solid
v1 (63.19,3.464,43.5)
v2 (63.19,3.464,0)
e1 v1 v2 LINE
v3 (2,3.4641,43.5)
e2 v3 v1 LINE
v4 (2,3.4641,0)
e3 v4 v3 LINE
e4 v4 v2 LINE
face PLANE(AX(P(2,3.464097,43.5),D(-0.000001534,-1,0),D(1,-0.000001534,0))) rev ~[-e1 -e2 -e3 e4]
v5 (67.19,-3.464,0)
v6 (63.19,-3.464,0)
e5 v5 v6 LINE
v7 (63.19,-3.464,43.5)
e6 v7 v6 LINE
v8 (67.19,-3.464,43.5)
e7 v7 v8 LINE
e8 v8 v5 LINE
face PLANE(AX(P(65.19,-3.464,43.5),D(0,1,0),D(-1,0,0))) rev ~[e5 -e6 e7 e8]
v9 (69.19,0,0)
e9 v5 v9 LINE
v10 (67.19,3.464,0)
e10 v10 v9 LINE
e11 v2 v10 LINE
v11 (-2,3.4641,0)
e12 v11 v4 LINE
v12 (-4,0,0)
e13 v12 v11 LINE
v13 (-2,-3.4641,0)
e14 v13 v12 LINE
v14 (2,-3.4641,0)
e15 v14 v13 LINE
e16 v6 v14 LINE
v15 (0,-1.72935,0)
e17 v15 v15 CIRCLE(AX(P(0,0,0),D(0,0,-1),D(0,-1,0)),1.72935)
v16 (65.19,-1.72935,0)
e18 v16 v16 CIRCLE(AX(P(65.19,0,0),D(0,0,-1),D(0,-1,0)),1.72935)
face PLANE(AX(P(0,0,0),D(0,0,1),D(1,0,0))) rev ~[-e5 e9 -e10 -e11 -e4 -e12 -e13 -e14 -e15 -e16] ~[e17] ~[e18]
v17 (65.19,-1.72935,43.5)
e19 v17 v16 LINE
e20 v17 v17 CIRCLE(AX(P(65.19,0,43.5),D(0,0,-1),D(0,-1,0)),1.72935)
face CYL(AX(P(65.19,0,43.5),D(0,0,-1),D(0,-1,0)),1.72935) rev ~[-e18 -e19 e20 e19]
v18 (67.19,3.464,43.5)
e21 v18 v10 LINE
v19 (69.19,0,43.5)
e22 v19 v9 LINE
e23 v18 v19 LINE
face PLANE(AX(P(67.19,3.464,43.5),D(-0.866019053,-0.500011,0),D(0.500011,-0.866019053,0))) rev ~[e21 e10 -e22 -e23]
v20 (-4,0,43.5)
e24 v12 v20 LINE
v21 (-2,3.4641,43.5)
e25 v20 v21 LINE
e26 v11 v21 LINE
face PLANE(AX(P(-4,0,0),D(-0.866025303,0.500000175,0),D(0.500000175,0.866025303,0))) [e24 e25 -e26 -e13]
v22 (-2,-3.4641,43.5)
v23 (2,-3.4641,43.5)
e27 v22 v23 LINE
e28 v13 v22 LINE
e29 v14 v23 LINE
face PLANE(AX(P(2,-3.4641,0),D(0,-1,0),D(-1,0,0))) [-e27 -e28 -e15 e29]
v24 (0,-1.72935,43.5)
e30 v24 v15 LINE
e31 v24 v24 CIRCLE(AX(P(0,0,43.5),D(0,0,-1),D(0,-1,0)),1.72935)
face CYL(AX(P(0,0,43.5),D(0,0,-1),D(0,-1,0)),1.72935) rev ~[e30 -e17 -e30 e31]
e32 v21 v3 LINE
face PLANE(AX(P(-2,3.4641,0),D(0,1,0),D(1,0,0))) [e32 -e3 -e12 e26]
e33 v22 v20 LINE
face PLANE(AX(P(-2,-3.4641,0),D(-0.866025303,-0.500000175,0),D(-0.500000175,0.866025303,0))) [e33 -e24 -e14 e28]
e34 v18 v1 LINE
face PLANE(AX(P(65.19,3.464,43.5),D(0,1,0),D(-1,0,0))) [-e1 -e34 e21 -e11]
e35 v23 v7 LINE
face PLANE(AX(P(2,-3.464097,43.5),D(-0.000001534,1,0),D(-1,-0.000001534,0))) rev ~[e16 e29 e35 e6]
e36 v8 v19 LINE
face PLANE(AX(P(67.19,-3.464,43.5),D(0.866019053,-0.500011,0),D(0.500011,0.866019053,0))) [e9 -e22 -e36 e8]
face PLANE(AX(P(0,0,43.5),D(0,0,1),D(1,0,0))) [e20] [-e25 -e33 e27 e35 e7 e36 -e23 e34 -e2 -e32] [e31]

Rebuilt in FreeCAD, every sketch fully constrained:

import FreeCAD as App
import Part
import Sketcher
from FreeCAD import Vector
Q = App.Units.Quantity

doc = App.newDocument("Part")
body = doc.addObject("PartDesign::Body", "Body")

sketch1 = body.newObject("Sketcher::SketchObject", "Sketch")
sketch1.AttachmentSupport = (doc.getObject("XY_Plane"), [""])
sketch1.MapMode = "FlatFace"
sketch1.addGeometry([
    Part.LineSegment(Vector(4, 0, 0), Vector(2, 3.4641, 0)),
    Part.LineSegment(Vector(2, 3.4641, 0), Vector(-2, 3.4641, 0)),
    Part.LineSegment(Vector(-2, 3.4641, 0), Vector(-4, 0, 0)),
    Part.LineSegment(Vector(-4, 0, 0), Vector(-2, -3.4641, 0)),
    Part.LineSegment(Vector(-2, -3.4641, 0), Vector(2, -3.4641, 0)),
    Part.LineSegment(Vector(2, -3.4641, 0), Vector(4, 0, 0)),
], False)
sketch1.addConstraint([
    Sketcher.Constraint("Coincident", 0, 2, 1, 1),
    Sketcher.Constraint("Coincident", 1, 2, 2, 1),
    Sketcher.Constraint("Coincident", 2, 2, 3, 1),
    Sketcher.Constraint("Coincident", 3, 2, 4, 1),
    Sketcher.Constraint("Coincident", 4, 2, 5, 1),
    Sketcher.Constraint("Coincident", 5, 2, 0, 1),
    Sketcher.Constraint("Horizontal", 1),
    Sketcher.Constraint("Horizontal", 4),
    Sketcher.Constraint("Symmetric", 0, 2, 3, 2, -1, 1),
    Sketcher.Constraint("Symmetric", 2, 2, 5, 2, -1, 1),
    Sketcher.Constraint("PointOnObject", 2, 2, -1),
    Sketcher.Constraint("Parallel", 2, 5),
    Sketcher.Constraint("Vertical", 1, 2, 3, 2),
    Sketcher.Constraint("DistanceX", 1, 2, 1, 1, 4.0),
    Sketcher.Constraint("Angle", 0, Q("120 deg")),
    Sketcher.Constraint("Distance", 0, 4.0),
])
pad1 = body.newObject("PartDesign::Pad", "Pad")
pad1.Profile = sketch1
pad1.Length = 43.5

sketch2 = body.newObject("Sketcher::SketchObject", "Sketch001")
sketch2.AttachmentSupport = (doc.getObject("XY_Plane"), [""])
sketch2.MapMode = "FlatFace"
sketch2.AttachmentOffset = App.Placement(Vector(0, 0, 43.5), App.Rotation())
sketch2.addGeometry(Part.Circle(Vector(0, 0, 0), Vector(0, 0, 1), 1.72935), False)
sketch2.addConstraint([
    Sketcher.Constraint("Coincident", 0, 3, -1, 1),
    Sketcher.Constraint("Diameter", 0, 3.4587),
])
doc.recompute()
hole = body.newObject("PartDesign::Hole", "Hole")
hole.Profile = sketch2
hole.ThreadType = "None"
hole.Diameter = 3.4587
hole.DepthType = "Dimension"
hole.Depth = 44
hole.DrillPoint = "Flat"

sketch3 = body.newObject("Sketcher::SketchObject", "Sketch002")
sketch3.AttachmentSupport = (doc.getObject("XY_Plane"), [""])
sketch3.MapMode = "FlatFace"
sketch3.AttachmentOffset = App.Placement(Vector(0, 0, 43.5), App.Rotation())
sketch3.addGeometry([
    Part.LineSegment(Vector(2, 3.4641, 0), Vector(4, 0, 0)),
    Part.LineSegment(Vector(4, 0, 0), Vector(0, -3.4641, 0)),
    Part.LineSegment(Vector(0, -3.4641, 0), Vector(63.19, -3.464, 0)),
    Part.LineSegment(Vector(63.19, -3.464, 0), Vector(67.19, -3.464, 0)),
    Part.LineSegment(Vector(67.19, -3.464, 0), Vector(69.19, 0, 0)),
    Part.LineSegment(Vector(69.19, 0, 0), Vector(67.19, 3.464, 0)),
    Part.LineSegment(Vector(67.19, 3.464, 0), Vector(63.19, 3.464, 0)),
    Part.LineSegment(Vector(63.19, 3.464003, 0), Vector(2, 3.464097, 0)),
], False)
sketch3.addConstraint([
    Sketcher.Constraint("Coincident", 0, 2, 1, 1),
    Sketcher.Constraint("Coincident", 1, 2, 2, 1),
    Sketcher.Constraint("Coincident", 2, 2, 3, 1),
    Sketcher.Constraint("Coincident", 3, 2, 4, 1),
    Sketcher.Constraint("Coincident", 4, 2, 5, 1),
    Sketcher.Constraint("Coincident", 5, 2, 6, 1),
    Sketcher.Constraint("Coincident", 6, 2, 7, 1),
    Sketcher.Constraint("Coincident", 7, 2, 0, 1),
    Sketcher.Constraint("Horizontal", 2),
    Sketcher.Constraint("Horizontal", 3),
    Sketcher.Constraint("Horizontal", 6),
    Sketcher.Constraint("Horizontal", 7),
    Sketcher.Constraint("Symmetric", 3, 2, 5, 2, -1),
    Sketcher.Constraint("PointOnObject", 0, 2, -1),
    Sketcher.Constraint("PointOnObject", 1, 2, -2),
    Sketcher.Constraint("PointOnObject", 4, 2, -1),
    Sketcher.Constraint("Parallel", 0, 5),
    Sketcher.Constraint("Vertical", 2, 2, 6, 2),
    Sketcher.Constraint("DistanceX", 3, 1, 3, 2, 4.0),
    Sketcher.Constraint("Distance", 0, 4.0),
    Sketcher.Constraint("DistanceX", -1, 1, 0, 2, 4.0),
    Sketcher.Constraint("DistanceX", -1, 1, 7, 2, 2.0),
    Sketcher.Constraint("DistanceX", 0, 2, 4, 2, 65.19),
])
pad2 = body.newObject("PartDesign::Pad", "Pad001")
pad2.Profile = sketch3
pad2.Length = 43.5
pad2.Reversed = True

sketch4 = body.newObject("Sketcher::SketchObject", "Sketch003")
sketch4.AttachmentSupport = (doc.getObject("XY_Plane"), [""])
sketch4.MapMode = "FlatFace"
sketch4.AttachmentOffset = App.Placement(Vector(0, 0, 43.5), App.Rotation())
sketch4.addGeometry(Part.Circle(Vector(65.19, 0, 0), Vector(0, 0, 1), 1.72935), False)
sketch4.addConstraint([
    Sketcher.Constraint("PointOnObject", 0, 3, -1),
    Sketcher.Constraint("Diameter", 0, 3.4587),
    Sketcher.Constraint("DistanceX", -1, 1, 0, 3, 65.19),
])
doc.recompute()
hole2 = body.newObject("PartDesign::Hole", "Hole001")
hole2.Profile = sketch4
hole2.ThreadType = "None"
hole2.Diameter = 3.4587
hole2.DepthType = "Dimension"
hole2.Depth = 44
hole2.DrillPoint = "Flat"

doc.recompute()
